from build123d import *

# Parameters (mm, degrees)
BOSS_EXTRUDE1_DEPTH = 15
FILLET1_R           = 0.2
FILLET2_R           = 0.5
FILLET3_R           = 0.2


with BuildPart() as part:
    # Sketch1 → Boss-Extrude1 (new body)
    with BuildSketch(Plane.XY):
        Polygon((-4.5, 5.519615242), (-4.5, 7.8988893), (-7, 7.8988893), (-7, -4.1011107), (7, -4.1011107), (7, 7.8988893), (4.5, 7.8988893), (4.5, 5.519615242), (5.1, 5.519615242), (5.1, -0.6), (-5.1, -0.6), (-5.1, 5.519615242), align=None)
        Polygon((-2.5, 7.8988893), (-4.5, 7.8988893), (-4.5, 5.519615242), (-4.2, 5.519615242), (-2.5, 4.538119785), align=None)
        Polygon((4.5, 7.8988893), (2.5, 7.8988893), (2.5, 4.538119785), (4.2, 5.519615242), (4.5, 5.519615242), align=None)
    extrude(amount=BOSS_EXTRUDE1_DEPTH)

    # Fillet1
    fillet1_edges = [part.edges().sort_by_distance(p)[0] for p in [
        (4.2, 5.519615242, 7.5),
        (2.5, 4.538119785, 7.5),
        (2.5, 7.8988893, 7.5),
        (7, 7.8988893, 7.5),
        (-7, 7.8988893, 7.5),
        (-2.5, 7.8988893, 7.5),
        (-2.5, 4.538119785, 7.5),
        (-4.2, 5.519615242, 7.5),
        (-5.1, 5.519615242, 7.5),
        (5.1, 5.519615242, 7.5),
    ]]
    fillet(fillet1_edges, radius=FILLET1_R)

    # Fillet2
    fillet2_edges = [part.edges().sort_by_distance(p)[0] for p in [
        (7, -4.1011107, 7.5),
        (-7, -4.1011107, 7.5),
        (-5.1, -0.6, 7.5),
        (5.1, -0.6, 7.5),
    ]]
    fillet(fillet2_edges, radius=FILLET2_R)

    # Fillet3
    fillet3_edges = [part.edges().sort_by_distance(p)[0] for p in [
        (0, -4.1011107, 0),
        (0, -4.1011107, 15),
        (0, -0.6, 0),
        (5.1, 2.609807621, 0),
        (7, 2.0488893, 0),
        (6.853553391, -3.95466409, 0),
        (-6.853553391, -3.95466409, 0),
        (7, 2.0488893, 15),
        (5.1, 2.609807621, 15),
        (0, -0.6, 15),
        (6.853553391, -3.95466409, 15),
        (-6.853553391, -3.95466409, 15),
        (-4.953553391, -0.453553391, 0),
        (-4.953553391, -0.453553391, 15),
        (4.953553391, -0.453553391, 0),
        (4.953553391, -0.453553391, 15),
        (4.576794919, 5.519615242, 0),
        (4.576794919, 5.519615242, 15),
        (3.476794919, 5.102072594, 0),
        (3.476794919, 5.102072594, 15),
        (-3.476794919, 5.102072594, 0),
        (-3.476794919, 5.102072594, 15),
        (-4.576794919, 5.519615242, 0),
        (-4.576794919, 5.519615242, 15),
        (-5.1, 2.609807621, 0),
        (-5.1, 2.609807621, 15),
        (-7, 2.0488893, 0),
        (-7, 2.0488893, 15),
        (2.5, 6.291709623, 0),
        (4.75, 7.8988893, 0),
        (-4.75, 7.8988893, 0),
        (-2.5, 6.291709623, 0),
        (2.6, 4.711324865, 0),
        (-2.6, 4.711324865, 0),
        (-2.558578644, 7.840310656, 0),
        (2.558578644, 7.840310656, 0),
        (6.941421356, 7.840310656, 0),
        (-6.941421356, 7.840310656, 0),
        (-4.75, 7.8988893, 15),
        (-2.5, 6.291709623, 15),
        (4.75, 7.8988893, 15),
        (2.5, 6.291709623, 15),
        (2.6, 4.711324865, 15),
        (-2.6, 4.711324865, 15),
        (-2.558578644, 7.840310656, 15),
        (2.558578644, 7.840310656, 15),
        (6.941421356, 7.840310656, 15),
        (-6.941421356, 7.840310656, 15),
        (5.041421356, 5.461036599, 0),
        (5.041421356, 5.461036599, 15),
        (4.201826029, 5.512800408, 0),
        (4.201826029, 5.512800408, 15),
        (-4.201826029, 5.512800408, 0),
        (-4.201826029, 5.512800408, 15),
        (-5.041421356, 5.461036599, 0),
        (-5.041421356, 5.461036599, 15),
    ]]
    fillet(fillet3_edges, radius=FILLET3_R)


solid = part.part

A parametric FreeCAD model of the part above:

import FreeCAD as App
import Part
import Sketcher
from FreeCAD import Vector
Q = App.Units.Quantity


def edges_at(feature, points):
    """Names of the edges that pass closest to the given points."""
    edges = feature.Shape.Edges
    near = lambda p: min(range(len(edges)), key=lambda i: edges[i].distToShape(Part.Vertex(*p))[0])
    return sorted({f"Edge{near(p) + 1}" for p in points})

doc = App.newDocument("Part")
body = doc.addObject("PartDesign::Body", "Body")

# Sketch on XY plane
sketch1 = body.newObject("Sketcher::SketchObject", "Sketch")
sketch1.AttachmentSupport = (doc.getObject("XY_Plane"), [""])
sketch1.MapMode = "FlatFace"
sketch1.addGeometry([
    Part.LineSegment(Vector(-7, 7.9, 0), Vector(-7, -4.1, 0)),  # 0
    Part.LineSegment(Vector(-7, -4.1, 0), Vector(7, -4.1, 0)),  # 1
    Part.LineSegment(Vector(7, -4.1, 0), Vector(7, 7.9, 0)),  # 2
    Part.LineSegment(Vector(7, 7.9, 0), Vector(2.5, 7.9, 0)),  # 3
    Part.LineSegment(Vector(2.5, 7.9, 0), Vector(2.5, 4.5, 0)),  # 4
    Part.LineSegment(Vector(2.5, 4.5, 0), Vector(4.2, 5.5, 0)),  # 5
    Part.LineSegment(Vector(4.2, 5.5, 0), Vector(5.1, 5.5, 0)),  # 6
    Part.LineSegment(Vector(5.1, 5.5, 0), Vector(5.1, -0.6, 0)),  # 7
    Part.LineSegment(Vector(5.1, -0.6, 0), Vector(-5.1, -0.6, 0)),  # 8
    Part.LineSegment(Vector(-5.1, -0.6, 0), Vector(-5.1, 5.5, 0)),  # 9
    Part.LineSegment(Vector(-5.1, 5.5, 0), Vector(-4.2, 5.5, 0)),  # 10
    Part.LineSegment(Vector(-4.2, 5.5, 0), Vector(-2.5, 4.5, 0)),  # 11
    Part.LineSegment(Vector(-2.5, 4.5, 0), Vector(-2.5, 7.9, 0)),  # 12
    Part.LineSegment(Vector(-2.5, 7.9, 0), Vector(-7, 7.9, 0)),  # 13
], False)
sketch1.addConstraint([
    Sketcher.Constraint("Coincident", 0, 2, 1, 1),
    Sketcher.Constraint("Coincident", 1, 2, 2, 1),
    Sketcher.Constraint("Coincident", 2, 2, 3, 1),
    Sketcher.Constraint("Coincident", 3, 2, 4, 1),
    Sketcher.Constraint("Coincident", 4, 2, 5, 1),
    Sketcher.Constraint("Coincident", 5, 2, 6, 1),
    Sketcher.Constraint("Coincident", 6, 2, 7, 1),
    Sketcher.Constraint("Coincident", 7, 2, 8, 1),
    Sketcher.Constraint("Coincident", 8, 2, 9, 1),
    Sketcher.Constraint("Coincident", 9, 2, 10, 1),
    Sketcher.Constraint("Coincident", 10, 2, 11, 1),
    Sketcher.Constraint("Coincident", 11, 2, 12, 1),
    Sketcher.Constraint("Coincident", 12, 2, 13, 1),
    Sketcher.Constraint("Coincident", 13, 2, 0, 1),
    Sketcher.Constraint("Vertical", 0),
    Sketcher.Constraint("Horizontal", 1),
    Sketcher.Constraint("Vertical", 2),
    Sketcher.Constraint("Horizontal", 3),
    Sketcher.Constraint("Vertical", 4),
    Sketcher.Constraint("Horizontal", 6),
    Sketcher.Constraint("Vertical", 7),
    Sketcher.Constraint("Horizontal", 8),
    Sketcher.Constraint("Vertical", 9),
    Sketcher.Constraint("Horizontal", 10),
    Sketcher.Constraint("Vertical", 12),
    Sketcher.Constraint("Horizontal", 13),
    Sketcher.Constraint("Symmetric", 6, 2, 9, 2, -2),
    Sketcher.Constraint("Symmetric", 4, 2, 11, 2, -2),
    Sketcher.Constraint("Symmetric", 2, 2, 13, 2, -2),
    Sketcher.Constraint("Equal", 6, 10),
    Sketcher.Constraint("DistanceX", 1, 1, 1, 2, Q("14 mm")),
    Sketcher.Constraint("DistanceY", 0, 2, 0, 1, Q("12 mm")),
    Sketcher.Constraint("Angle", 5, Q("30 deg")),
    Sketcher.Constraint("DistanceX", 3, 2, 3, 1, Q("4.5 mm")),
    Sketcher.Constraint("DistanceX", 6, 1, 6, 2, Q("0.9 mm")),
    Sketcher.Constraint("DistanceX", 8, 2, 8, 1, Q("10.2 mm")),
    Sketcher.Constraint("DistanceY", 7, 2, -1, 1, Q("0.6 mm")),
    Sketcher.Constraint("DistanceY", 4, 2, 4, 1, Q("3.36077 mm")),
    Sketcher.Constraint("DistanceY", 7, 2, 7, 1, Q("6.119615 mm")),
])
pad1 = body.newObject("PartDesign::Pad", "Pad")
pad1.Profile = sketch1
pad1.Length = 15
doc.recompute()

fillet = body.newObject("PartDesign::Fillet", "Fillet")
fillet.Base = (pad1, edges_at(pad1, [
    (4.2, 5.52, 7.5),
    (2.5, 4.538, 7.5),
    (2.5, 7.899, 7.5),
    (7, 7.899, 7.5),
    (-7, 7.899, 7.5),
    (-2.5, 7.899, 7.5),
    (-2.5, 4.538, 7.5),
    (-4.2, 5.52, 7.5),
    (-5.1, 5.52, 7.5),
    (5.1, 5.52, 7.5),
]))
fillet.Radius = 0.2
doc.recompute()

fillet2 = body.newObject("PartDesign::Fillet", "Fillet001")
fillet2.Base = (fillet, edges_at(fillet, [
    (7, -4.101, 7.5),
    (-7, -4.101, 7.5),
    (-5.1, -0.6, 7.5),
    (5.1, -0.6, 7.5),
]))
fillet2.Radius = 0.5
doc.recompute()

fillet3 = body.newObject("PartDesign::Fillet", "Fillet002")
fillet3.Base = (fillet2, edges_at(fillet2, [
    (0, -4.101, 0),
    (0, -4.101, 15),
    (0, -0.6, 0),
    (5.1, 2.61, 0),
    (7, 2.049, 0),
    (6.854, -3.955, 0),
    (-6.854, -3.955, 0),
    (7, 2.049, 15),
    (5.1, 2.61, 15),
    (0, -0.6, 15),
    (6.854, -3.955, 15),
    (-6.854, -3.955, 15),
    (-4.954, -0.454, 0),
    (-4.954, -0.454, 15),
    (4.954, -0.454, 0),
    (4.954, -0.454, 15),
    (4.577, 5.52, 0),
    (4.577, 5.52, 15),
    (3.477, 5.102, 0),
    (3.477, 5.102, 15),
    (-3.477, 5.102, 0),
    (-3.477, 5.102, 15),
    (-4.577, 5.52, 0),
    (-4.577, 5.52, 15),
    (-5.1, 2.61, 0),
    (-5.1, 2.61, 15),
    (-7, 2.049, 0),
    (-7, 2.049, 15),
    (2.5, 6.292, 0),
    (4.75, 7.899, 0),
    (-4.75, 7.899, 0),
    (-2.5, 6.292, 0),
    (2.6, 4.711, 0),
    (-2.6, 4.711, 0),
    (-2.559, 7.84, 0),
    (2.559, 7.84, 0),
    (6.941, 7.84, 0),
    (-6.941, 7.84, 0),
    (-4.75, 7.899, 15),
    (-2.5, 6.292, 15),
    (4.75, 7.899, 15),
    (2.5, 6.292, 15),
    (2.6, 4.711, 15),
    (-2.6, 4.711, 15),
    (-2.559, 7.84, 15),
    (2.559, 7.84, 15),
    (6.941, 7.84, 15),
    (-6.941, 7.84, 15),
    (5.041, 5.461, 0),
    (5.041, 5.461, 15),
    (4.202, 5.513, 0),
    (4.202, 5.513, 15),
    (-4.202, 5.513, 0),
    (-4.202, 5.513, 15),
    (-5.041, 5.461, 0),
    (-5.041, 5.461, 15),
]))
fillet3.Radius = 0.2

doc.recompute()
